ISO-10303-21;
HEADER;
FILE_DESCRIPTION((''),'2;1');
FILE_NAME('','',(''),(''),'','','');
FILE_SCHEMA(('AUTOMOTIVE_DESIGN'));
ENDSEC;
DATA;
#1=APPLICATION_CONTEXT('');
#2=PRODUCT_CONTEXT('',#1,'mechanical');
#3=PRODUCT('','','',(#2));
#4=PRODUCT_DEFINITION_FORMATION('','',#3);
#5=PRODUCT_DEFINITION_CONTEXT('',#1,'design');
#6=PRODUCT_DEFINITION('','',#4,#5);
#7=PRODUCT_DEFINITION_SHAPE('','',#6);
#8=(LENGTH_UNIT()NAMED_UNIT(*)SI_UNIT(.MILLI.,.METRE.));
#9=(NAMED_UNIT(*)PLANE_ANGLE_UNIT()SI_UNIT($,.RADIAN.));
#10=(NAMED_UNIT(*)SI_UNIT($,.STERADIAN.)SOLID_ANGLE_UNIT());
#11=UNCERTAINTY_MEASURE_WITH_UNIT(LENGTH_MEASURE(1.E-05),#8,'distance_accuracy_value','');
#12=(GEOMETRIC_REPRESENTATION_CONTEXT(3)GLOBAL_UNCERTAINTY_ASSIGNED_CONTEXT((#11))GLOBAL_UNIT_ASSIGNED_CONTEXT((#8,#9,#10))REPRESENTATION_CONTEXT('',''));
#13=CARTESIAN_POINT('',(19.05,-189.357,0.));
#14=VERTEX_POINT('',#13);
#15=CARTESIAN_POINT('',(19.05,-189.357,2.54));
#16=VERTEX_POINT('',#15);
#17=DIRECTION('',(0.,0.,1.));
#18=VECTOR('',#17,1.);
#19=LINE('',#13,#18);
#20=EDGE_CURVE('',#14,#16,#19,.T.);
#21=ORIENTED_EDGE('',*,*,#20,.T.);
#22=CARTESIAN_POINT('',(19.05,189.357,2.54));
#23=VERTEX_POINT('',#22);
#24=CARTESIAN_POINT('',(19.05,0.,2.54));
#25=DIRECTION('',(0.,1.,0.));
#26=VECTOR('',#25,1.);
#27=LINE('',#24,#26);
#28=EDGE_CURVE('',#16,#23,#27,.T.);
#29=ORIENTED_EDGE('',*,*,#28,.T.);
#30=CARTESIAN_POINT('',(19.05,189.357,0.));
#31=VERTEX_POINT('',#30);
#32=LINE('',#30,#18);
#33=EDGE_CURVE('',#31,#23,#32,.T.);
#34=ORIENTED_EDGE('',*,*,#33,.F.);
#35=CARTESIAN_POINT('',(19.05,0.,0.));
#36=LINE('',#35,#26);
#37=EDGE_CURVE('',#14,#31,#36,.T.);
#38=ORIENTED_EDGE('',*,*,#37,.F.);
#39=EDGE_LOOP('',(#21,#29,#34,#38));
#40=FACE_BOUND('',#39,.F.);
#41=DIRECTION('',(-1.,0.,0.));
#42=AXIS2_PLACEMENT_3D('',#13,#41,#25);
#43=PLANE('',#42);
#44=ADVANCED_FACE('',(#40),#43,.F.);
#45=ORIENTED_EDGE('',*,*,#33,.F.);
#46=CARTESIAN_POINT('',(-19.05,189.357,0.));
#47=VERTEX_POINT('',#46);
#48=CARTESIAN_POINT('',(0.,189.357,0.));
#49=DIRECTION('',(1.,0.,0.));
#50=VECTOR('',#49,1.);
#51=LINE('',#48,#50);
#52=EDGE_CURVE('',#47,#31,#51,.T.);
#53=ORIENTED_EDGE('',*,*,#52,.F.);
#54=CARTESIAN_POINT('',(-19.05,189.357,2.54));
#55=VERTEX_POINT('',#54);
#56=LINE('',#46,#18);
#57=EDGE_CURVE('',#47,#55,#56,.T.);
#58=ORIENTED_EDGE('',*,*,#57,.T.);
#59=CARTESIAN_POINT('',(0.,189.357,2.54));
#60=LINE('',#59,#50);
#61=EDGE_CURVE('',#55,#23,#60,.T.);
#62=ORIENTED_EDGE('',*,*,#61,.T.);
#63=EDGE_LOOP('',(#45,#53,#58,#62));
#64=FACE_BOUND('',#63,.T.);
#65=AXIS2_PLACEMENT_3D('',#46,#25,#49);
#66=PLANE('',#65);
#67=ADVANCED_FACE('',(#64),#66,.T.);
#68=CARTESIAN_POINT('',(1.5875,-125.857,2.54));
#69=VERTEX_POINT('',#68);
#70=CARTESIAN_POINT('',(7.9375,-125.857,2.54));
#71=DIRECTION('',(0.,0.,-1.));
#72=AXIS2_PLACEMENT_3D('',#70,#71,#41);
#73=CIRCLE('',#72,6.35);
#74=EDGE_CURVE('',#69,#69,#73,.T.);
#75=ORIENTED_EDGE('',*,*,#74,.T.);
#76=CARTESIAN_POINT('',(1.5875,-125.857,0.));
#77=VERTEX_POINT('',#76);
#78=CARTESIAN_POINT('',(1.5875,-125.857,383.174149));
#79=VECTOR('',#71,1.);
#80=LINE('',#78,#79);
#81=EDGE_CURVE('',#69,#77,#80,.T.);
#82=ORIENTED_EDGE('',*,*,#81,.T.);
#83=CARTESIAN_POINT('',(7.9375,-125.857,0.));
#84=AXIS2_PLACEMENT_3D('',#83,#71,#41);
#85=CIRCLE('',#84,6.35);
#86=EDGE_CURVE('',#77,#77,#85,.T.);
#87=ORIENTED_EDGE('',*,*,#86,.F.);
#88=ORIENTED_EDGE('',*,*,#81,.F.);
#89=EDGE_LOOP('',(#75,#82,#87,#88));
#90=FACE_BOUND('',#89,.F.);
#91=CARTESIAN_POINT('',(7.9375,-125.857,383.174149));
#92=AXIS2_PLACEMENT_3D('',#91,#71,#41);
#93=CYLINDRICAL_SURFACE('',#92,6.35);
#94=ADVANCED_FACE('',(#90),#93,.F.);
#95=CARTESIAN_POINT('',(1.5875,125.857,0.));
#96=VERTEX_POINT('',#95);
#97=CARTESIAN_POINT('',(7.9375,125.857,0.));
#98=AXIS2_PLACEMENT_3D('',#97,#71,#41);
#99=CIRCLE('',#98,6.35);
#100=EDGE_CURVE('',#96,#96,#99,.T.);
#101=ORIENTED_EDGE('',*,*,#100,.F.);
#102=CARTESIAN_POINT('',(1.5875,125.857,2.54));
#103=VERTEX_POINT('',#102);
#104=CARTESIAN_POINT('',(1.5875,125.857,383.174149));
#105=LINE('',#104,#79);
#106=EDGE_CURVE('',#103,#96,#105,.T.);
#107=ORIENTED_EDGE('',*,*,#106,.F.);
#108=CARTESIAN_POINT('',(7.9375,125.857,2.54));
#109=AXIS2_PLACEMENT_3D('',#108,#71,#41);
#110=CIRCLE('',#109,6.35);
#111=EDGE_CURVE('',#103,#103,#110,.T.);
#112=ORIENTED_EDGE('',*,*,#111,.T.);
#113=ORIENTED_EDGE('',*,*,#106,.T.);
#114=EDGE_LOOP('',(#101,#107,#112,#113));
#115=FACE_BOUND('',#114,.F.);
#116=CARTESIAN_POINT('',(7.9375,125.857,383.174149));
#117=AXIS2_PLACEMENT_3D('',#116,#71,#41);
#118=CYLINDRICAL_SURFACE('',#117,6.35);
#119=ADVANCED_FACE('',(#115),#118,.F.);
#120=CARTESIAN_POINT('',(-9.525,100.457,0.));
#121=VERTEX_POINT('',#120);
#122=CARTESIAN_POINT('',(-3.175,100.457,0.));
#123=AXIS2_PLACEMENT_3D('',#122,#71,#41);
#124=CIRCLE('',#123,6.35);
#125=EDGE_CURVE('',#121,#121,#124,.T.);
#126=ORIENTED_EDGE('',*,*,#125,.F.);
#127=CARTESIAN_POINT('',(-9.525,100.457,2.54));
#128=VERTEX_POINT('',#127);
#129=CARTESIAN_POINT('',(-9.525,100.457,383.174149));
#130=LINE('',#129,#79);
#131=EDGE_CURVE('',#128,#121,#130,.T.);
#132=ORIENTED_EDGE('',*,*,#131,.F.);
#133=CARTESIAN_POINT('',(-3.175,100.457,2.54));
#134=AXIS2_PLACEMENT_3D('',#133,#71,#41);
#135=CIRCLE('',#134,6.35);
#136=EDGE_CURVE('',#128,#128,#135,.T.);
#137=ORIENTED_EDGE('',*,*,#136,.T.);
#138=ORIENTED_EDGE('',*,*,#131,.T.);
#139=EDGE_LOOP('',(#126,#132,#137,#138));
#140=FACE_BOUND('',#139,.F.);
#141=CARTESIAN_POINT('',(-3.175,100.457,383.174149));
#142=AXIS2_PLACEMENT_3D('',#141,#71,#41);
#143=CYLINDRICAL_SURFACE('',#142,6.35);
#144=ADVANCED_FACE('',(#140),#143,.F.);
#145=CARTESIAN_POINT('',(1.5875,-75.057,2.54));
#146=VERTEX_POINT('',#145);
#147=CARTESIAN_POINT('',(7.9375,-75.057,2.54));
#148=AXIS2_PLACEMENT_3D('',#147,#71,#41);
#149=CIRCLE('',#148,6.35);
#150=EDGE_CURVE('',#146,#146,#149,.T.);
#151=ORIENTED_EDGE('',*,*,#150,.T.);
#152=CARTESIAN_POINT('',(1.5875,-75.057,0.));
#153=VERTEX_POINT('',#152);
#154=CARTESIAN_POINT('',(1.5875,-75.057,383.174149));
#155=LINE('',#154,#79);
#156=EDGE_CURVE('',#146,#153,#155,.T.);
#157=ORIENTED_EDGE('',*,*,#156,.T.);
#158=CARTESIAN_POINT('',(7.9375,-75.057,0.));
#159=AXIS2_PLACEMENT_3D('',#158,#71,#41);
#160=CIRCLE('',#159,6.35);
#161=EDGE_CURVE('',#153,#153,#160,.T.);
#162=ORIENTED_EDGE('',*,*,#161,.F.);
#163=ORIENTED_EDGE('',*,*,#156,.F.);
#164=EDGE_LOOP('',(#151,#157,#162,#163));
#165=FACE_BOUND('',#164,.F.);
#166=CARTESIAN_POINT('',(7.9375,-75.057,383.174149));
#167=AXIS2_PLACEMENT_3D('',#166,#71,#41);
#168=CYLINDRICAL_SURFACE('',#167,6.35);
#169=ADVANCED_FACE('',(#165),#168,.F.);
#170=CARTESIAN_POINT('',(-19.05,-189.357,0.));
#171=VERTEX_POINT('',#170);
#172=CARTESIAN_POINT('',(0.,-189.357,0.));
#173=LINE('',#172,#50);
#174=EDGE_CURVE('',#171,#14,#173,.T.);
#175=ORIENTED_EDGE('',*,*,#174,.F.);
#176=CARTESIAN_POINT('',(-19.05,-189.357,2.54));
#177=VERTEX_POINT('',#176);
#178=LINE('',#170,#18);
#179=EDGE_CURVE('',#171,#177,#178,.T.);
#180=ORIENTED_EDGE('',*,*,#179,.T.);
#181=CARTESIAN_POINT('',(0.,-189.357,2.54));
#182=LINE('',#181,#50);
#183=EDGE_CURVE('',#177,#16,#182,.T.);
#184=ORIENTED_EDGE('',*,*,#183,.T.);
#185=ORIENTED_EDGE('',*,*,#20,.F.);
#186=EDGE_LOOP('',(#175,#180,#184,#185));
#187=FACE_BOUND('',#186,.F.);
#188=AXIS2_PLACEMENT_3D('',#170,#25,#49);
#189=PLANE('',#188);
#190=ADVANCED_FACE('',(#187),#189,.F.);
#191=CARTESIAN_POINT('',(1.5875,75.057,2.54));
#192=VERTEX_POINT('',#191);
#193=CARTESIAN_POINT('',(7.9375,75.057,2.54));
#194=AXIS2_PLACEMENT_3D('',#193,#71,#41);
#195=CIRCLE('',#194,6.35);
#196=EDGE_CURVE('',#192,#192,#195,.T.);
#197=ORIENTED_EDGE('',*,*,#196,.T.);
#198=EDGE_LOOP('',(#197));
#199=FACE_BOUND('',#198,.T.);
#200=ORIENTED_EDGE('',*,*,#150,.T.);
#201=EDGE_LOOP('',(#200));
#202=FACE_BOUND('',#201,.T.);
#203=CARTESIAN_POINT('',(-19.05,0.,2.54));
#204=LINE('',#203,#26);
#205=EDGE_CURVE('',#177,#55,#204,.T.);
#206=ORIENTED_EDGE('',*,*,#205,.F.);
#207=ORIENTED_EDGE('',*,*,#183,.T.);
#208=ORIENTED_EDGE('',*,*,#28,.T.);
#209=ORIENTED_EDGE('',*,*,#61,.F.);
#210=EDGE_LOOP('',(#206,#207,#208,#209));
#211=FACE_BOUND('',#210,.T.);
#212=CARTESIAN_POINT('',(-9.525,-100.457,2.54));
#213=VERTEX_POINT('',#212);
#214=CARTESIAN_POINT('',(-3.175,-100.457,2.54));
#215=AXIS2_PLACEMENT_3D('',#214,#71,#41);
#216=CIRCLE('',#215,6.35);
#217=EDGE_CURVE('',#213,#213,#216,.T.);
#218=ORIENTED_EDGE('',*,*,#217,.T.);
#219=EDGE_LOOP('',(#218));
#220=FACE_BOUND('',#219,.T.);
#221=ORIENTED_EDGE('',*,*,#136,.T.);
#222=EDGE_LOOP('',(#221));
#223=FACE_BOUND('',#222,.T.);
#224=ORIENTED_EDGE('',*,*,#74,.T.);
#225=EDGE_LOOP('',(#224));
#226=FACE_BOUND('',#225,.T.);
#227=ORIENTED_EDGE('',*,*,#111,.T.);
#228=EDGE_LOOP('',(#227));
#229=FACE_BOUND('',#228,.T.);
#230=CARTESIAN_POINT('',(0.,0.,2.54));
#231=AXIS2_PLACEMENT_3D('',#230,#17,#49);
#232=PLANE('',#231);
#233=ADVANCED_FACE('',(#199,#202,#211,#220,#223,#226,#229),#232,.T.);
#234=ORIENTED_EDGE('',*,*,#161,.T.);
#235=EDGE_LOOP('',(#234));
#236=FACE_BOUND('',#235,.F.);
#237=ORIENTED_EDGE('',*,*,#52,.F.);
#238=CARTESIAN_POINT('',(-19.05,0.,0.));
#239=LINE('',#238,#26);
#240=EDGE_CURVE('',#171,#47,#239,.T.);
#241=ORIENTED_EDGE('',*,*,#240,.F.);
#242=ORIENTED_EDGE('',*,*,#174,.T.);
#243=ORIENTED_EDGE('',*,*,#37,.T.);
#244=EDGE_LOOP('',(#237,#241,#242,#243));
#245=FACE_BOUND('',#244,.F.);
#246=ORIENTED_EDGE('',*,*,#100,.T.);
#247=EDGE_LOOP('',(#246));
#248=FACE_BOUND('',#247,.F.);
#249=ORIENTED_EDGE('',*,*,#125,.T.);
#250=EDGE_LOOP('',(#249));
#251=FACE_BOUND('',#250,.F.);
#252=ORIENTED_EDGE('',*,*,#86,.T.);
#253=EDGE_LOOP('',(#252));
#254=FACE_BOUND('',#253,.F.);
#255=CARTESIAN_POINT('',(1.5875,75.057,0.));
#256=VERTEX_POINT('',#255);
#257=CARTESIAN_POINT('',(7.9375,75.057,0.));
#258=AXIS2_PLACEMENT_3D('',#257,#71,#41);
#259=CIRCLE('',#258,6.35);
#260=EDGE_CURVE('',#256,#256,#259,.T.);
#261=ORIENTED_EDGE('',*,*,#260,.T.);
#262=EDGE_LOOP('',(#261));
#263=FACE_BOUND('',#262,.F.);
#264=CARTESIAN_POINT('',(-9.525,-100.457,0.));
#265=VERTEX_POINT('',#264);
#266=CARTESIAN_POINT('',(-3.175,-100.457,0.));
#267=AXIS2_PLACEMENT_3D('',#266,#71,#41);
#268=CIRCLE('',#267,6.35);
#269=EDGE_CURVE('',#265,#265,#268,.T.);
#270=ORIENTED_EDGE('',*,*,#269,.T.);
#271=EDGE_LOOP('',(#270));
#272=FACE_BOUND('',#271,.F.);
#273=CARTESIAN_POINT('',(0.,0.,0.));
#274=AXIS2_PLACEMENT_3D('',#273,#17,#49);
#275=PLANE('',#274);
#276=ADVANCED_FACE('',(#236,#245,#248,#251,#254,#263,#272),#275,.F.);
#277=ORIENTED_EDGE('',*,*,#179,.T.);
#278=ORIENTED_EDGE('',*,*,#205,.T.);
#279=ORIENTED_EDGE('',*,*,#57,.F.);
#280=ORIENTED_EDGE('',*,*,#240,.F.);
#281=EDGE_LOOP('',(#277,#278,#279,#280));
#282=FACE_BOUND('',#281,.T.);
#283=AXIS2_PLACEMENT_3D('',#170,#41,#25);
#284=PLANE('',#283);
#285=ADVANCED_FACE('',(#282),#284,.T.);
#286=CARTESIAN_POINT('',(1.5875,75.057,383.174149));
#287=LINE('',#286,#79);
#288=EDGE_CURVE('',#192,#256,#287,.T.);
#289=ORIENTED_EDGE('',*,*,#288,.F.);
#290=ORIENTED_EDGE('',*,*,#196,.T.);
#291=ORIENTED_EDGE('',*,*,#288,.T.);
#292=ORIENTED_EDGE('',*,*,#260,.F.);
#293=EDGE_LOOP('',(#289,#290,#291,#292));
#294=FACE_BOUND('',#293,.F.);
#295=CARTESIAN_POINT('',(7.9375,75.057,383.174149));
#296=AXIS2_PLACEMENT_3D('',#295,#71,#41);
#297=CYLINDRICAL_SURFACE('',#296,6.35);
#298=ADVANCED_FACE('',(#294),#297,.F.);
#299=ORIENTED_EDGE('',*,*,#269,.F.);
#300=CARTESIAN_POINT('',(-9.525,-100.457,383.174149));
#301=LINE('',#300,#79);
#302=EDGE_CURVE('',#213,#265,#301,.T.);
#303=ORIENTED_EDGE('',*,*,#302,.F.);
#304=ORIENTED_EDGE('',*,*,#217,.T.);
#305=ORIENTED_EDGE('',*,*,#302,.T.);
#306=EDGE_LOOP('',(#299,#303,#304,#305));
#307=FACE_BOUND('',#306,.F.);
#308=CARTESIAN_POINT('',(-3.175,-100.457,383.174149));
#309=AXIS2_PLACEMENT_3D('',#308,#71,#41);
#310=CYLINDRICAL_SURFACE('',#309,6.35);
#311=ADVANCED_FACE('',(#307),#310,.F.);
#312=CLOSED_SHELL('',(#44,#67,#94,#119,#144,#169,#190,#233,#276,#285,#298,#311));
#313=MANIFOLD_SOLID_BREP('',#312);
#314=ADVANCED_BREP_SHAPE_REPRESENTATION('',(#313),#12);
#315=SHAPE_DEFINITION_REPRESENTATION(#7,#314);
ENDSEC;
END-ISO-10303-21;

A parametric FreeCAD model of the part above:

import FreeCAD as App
import Part
import Sketcher
Q = App.Units.Quantity

doc = App.newDocument("Part")
body = doc.addObject("PartDesign::Body", "Body")

sketch1 = body.newObject("Sketcher::SketchObject", "Sketch")
sketch1.AttachmentSupport = (doc.getObject("XY_Plane"), [""])
sketch1.MapMode = "FlatFace"
sketch1.addGeometry([
    Part.LineSegment(App.Vector(-19, 189, 0), App.Vector(-19, -189, 0)),
    Part.LineSegment(App.Vector(-19, -189, 0), App.Vector(19, -189, 0)),
    Part.LineSegment(App.Vector(19, -189, 0), App.Vector(19, 189, 0)),
    Part.LineSegment(App.Vector(19, 189, 0), App.Vector(-19, 189, 0)),
], False)
sketch1.addConstraint([
    Sketcher.Constraint("Coincident", 0, 2, 1, 1),
    Sketcher.Constraint("Coincident", 1, 2, 2, 1),
    Sketcher.Constraint("Coincident", 2, 2, 3, 1),
    Sketcher.Constraint("Coincident", 3, 2, 0, 1),
    Sketcher.Constraint("Vertical", 0),
    Sketcher.Constraint("Horizontal", 1),
    Sketcher.Constraint("Vertical", 2),
    Sketcher.Constraint("Horizontal", 3),
    Sketcher.Constraint("Symmetric", 0, 2, 2, 2, -1, 1),
    Sketcher.Constraint("DistanceX", 1, 1, 1, 2, Q("1.5 in")),
    Sketcher.Constraint("DistanceY", 0, 2, 0, 1, Q("14.91 in")),
])
pad1 = body.newObject("PartDesign::Pad", "Pad")
pad1.Profile = sketch1
pad1.Length = Q("0.1 in")

sketch2 = body.newObject("Sketcher::SketchObject", "Sketch001")
sketch2.AttachmentSupport = (doc.getObject("XY_Plane"), [""])
sketch2.MapMode = "FlatFace"
sketch2.AttachmentOffset = App.Placement(App.Vector(0, 0, 0.1 * 25.4), App.Rotation())
sketch2.addGeometry([
    Part.Circle(App.Vector(-3, 100, 0), App.Vector(0, 0, 1), 6),
    Part.Circle(App.Vector(8, 75, 0), App.Vector(0, 0, 1), 6),
    Part.Circle(App.Vector(8, 126, 0), App.Vector(0, 0, 1), 6),
], False)
sketch2.addConstraint([
    Sketcher.Constraint("Equal", 0, 1),
    Sketcher.Constraint("Equal", 1, 2),
    Sketcher.Constraint("Vertical", 1, 3, 2, 3),
    Sketcher.Constraint("Diameter", 0, Q("0.5 in")),
    Sketcher.Constraint("DistanceY", 1, 3, 0, 3, Q("1 in")),
    Sketcher.Constraint("DistanceY", 0, 3, 2, 3, Q("1 in")),
    Sketcher.Constraint("DistanceX", 0, 3, -1, 1, Q("0.125 in")),
    Sketcher.Constraint("DistanceY", -1, 1, 0, 3, Q("3.955 in")),
    Sketcher.Constraint("DistanceX", -1, 1, 1, 3, Q("0.3125 in")),
])
doc.recompute()
hole = body.newObject("PartDesign::Hole", "Hole")
hole.Profile = sketch2
hole.ThreadType = "None"
hole.Diameter = Q("0.5 in")
hole.DepthType = "ThroughAll"

sketch3 = body.newObject("Sketcher::SketchObject", "Sketch002")
sketch3.AttachmentSupport = (doc.getObject("XY_Plane"), [""])
sketch3.MapMode = "FlatFace"
sketch3.AttachmentOffset = App.Placement(App.Vector(0, 0, 0.1 * 25.4), App.Rotation())
sketch3.addGeometry([
    Part.Circle(App.Vector(8, -126, 0), App.Vector(0, 0, 1), 6),
    Part.Circle(App.Vector(-3, -100, 0), App.Vector(0, 0, 1), 6),
    Part.Circle(App.Vector(8, -75, 0), App.Vector(0, 0, 1), 6),
], False)
sketch3.addConstraint([
    Sketcher.Constraint("Equal", 0, 1),
    Sketcher.Constraint("Equal", 1, 2),
    Sketcher.Constraint("Vertical", 0, 3, 2, 3),
    Sketcher.Constraint("Diameter", 0, Q("0.5 in")),
    Sketcher.Constraint("DistanceY", 0, 3, 1, 3, Q("1 in")),
    Sketcher.Constraint("DistanceY", 1, 3, 2, 3, Q("1 in")),
    Sketcher.Constraint("DistanceX", -1, 1, 0, 3, Q("0.3125 in")),
    Sketcher.Constraint("DistanceY", 0, 3, -1, 1, Q("4.955 in")),
    Sketcher.Constraint("DistanceX", 1, 3, -1, 1, Q("0.125 in")),
])
doc.recompute()
hole2 = body.newObject("PartDesign::Hole", "Hole001")
hole2.Profile = sketch3
hole2.ThreadType = "None"
hole2.Diameter = Q("0.5 in")
hole2.DepthType = "ThroughAll"

doc.recompute()
